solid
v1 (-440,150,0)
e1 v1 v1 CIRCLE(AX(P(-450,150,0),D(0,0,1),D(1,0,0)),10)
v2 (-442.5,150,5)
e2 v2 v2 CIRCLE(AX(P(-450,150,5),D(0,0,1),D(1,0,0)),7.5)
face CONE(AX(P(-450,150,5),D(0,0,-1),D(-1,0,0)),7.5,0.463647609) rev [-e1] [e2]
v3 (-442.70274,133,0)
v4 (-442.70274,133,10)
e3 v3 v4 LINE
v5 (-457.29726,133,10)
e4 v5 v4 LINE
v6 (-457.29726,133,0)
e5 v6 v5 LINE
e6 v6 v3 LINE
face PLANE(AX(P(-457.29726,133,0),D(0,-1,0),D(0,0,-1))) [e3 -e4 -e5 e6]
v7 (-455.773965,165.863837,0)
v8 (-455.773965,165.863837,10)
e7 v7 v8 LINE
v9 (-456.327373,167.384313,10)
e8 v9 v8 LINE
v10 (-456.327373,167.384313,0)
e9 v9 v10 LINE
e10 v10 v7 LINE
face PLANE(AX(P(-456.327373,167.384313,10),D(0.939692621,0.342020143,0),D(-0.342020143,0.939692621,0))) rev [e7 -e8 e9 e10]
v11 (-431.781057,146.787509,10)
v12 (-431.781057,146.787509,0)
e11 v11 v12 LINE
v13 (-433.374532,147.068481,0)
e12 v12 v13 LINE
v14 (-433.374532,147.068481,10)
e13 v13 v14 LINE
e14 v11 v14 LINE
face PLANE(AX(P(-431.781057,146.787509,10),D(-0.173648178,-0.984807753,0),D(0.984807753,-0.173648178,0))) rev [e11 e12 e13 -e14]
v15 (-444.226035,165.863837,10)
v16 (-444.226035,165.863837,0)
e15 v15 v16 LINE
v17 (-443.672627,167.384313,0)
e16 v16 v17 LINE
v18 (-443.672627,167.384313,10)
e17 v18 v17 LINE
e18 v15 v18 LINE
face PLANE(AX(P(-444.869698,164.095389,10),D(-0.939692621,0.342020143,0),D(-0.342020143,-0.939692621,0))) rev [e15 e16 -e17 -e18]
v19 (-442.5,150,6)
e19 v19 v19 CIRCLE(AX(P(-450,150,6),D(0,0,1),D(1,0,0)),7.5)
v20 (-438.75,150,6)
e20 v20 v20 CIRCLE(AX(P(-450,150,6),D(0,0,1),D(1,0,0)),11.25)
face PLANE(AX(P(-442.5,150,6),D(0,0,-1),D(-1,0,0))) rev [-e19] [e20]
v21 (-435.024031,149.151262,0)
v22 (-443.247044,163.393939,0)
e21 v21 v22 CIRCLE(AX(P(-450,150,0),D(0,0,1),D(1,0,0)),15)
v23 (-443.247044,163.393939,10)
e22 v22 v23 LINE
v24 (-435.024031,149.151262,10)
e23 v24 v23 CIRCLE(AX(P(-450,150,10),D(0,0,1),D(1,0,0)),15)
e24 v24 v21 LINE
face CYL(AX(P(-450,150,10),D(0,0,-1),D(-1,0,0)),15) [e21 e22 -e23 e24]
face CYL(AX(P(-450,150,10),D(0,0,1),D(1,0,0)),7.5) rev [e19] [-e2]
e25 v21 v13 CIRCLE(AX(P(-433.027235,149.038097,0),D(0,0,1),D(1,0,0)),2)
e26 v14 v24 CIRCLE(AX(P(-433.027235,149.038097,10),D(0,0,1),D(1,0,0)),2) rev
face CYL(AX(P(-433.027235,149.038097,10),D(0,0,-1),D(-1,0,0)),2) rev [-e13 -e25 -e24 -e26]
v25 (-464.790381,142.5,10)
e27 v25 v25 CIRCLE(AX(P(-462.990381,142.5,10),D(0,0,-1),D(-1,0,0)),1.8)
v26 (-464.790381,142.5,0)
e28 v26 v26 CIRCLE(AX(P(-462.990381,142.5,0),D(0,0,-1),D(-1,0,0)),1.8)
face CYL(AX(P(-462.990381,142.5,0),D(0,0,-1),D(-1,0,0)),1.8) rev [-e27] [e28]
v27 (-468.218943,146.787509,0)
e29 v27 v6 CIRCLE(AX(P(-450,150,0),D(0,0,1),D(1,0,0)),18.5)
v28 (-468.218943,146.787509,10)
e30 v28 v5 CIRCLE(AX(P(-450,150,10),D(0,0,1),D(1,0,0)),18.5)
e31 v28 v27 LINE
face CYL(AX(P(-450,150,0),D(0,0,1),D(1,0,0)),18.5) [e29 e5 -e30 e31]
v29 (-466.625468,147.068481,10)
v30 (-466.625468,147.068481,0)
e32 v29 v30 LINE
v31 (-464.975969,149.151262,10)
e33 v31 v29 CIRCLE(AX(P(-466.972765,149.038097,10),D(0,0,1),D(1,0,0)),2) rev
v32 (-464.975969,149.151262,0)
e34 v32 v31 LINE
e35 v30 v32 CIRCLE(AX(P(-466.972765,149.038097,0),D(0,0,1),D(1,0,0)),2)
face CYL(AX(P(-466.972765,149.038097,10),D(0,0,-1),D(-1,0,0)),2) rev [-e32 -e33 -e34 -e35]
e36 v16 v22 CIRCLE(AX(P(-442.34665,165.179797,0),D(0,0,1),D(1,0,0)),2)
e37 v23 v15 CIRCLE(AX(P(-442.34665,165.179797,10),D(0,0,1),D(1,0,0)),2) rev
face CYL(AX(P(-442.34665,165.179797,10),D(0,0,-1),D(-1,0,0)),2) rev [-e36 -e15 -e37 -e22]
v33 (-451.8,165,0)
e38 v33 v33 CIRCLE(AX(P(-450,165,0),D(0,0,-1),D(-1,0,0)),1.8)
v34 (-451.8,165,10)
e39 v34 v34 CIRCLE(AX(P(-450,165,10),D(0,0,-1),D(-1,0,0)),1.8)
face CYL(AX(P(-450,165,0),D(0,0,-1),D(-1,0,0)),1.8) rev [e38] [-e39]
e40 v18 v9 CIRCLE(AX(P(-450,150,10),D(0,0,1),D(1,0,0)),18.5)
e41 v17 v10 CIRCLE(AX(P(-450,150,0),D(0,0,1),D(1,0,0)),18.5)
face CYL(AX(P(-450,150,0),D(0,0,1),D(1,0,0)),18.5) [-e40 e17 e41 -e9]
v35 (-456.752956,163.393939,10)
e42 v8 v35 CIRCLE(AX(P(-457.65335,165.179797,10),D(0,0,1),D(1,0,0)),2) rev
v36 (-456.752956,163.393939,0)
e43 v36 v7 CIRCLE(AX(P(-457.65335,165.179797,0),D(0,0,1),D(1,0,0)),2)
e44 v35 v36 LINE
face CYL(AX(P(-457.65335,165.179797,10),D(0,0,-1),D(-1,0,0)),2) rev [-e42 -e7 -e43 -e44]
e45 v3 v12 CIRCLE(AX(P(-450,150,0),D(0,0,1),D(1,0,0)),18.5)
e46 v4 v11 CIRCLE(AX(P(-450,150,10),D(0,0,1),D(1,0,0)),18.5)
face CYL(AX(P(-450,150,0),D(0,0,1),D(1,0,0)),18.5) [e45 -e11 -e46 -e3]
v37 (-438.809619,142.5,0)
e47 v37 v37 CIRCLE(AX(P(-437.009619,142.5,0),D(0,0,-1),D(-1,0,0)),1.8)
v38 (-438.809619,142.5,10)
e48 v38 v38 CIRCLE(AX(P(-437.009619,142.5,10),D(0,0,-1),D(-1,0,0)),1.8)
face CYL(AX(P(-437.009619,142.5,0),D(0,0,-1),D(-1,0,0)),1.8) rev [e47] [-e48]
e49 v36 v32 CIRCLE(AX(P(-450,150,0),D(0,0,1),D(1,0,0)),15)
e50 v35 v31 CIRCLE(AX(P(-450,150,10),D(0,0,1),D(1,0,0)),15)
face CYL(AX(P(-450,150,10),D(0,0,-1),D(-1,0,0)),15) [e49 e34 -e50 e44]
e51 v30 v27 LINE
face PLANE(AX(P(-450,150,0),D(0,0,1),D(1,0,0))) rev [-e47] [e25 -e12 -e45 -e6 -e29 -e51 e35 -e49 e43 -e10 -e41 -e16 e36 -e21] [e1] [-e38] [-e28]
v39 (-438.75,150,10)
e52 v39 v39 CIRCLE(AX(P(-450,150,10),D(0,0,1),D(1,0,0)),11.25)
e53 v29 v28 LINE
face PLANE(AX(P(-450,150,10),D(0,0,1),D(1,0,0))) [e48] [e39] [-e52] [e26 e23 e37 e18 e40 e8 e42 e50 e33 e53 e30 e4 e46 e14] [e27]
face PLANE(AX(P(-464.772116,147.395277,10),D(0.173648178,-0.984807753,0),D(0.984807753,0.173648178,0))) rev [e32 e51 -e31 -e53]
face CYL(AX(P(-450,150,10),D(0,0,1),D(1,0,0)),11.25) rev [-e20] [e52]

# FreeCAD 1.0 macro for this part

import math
import FreeCAD as App
import Part
import Sketcher
Q = App.Units.Quantity


def edges_at(feature, points):
    """Names of the edges that pass closest to the given points."""
    edges = feature.Shape.Edges
    near = lambda p: min(range(len(edges)), key=lambda i: edges[i].distToShape(Part.Vertex(*p))[0])
    return sorted({f"Edge{near(p) + 1}" for p in points})


def add_polygon(sketch, points):
    """Adds a closed chain of lines whose ends are joined by coincident constraints."""
    first, n = sketch.GeometryCount, len(points)
    for a, b in zip(points, points[1:] + points[:1]):
        sketch.addGeometry(Part.LineSegment(App.Vector(*a, 0), App.Vector(*b, 0)), False)
    for i in range(n):
        sketch.addConstraint(Sketcher.Constraint("Coincident", first + i, 2, first + (i + 1) % n, 1))

doc = App.newDocument("Part")
body = doc.addObject("PartDesign::Body", "Body")

sketch1 = doc.addObject("Sketcher::SketchObject", "Sketch")
body.addObject(sketch1)
sketch1.AttachmentSupport = (doc.XY_Plane, [""])
sketch1.MapMode = "FlatFace"
sketch1.AttachmentOffset = App.Placement(App.Vector(0, 0, 10), App.Rotation())
sketch1.addGeometry([
    Part.LineSegment(App.Vector(-457, 133, 0), App.Vector(-443, 133, 0)),
    Part.ArcOfCircle(Part.Circle(App.Vector(-450, 150, 0), App.Vector(0, 0, 1), 18), math.radians(-67), math.radians(247)),
], False)
sketch1.addConstraint([
    Sketcher.Constraint("Coincident", 0, 1, 1, 2),
    Sketcher.Constraint("Coincident", 1, 1, 0, 2),
    Sketcher.Constraint("Horizontal", 0),
    Sketcher.Constraint("Radius", 1, 18.5),
    Sketcher.Constraint("DistanceX", 1, 3, -1, 1, 450.0),
    Sketcher.Constraint("DistanceY", -1, 1, 1, 3, 150.0),
    Sketcher.Constraint("DistanceY", -1, 1, 0, 1, 133.0),
])
pad1 = doc.addObject("PartDesign::Pad", "Pad")
body.addObject(pad1)
pad1.Profile = sketch1
pad1.Length = 10
pad1.Reversed = True

sketch2 = doc.addObject("Sketcher::SketchObject", "Sketch001")
body.addObject(sketch2)
sketch2.AttachmentSupport = (doc.XY_Plane, [""])
sketch2.MapMode = "FlatFace"
sketch2.addGeometry([
    Part.LineSegment(App.Vector(-431.8, 146.8, 0), App.Vector(-435.2, 147.4, 0)),
    Part.ArcOfCircle(Part.Circle(App.Vector(-450, 150, 0), App.Vector(0, 0, 1), 15), math.radians(-10), math.radians(70)),
    Part.LineSegment(App.Vector(-444.9, 164.1, 0), App.Vector(-443.7, 167.4, 0)),
    Part.ArcOfCircle(Part.Circle(App.Vector(-450, 150, 0), App.Vector(0, 0, 1), 18.5), math.radians(-10), math.radians(70)),
], False)
sketch2.addConstraint([
    Sketcher.Constraint("Coincident", 0, 2, 1, 1),
    Sketcher.Constraint("Coincident", 1, 2, 2, 1),
    Sketcher.Constraint("Coincident", 2, 2, 3, 2),
    Sketcher.Constraint("Coincident", 3, 1, 0, 1),
    Sketcher.Constraint("Coincident", 3, 3, 1, 3),
    Sketcher.Constraint("Radius", 1, 15.0),
    Sketcher.Constraint("Radius", 3, 18.5),
    Sketcher.Constraint("Angle", 0, Q("170 deg")),
    Sketcher.Constraint("Angle", 2, Q("70 deg")),
    Sketcher.Constraint("DistanceX", 1, 3, -1, 1, 450.0),
    Sketcher.Constraint("DistanceY", -1, 1, 1, 3, 150.0),
    Sketcher.Constraint("DistanceY", -1, 1, 1, 2, 164.095389),
    Sketcher.Constraint("DistanceY", -1, 1, 3, 1, 146.787509),
])
pocket1 = doc.addObject("PartDesign::Pocket", "Pocket")
body.addObject(pocket1)
pocket1.Profile = sketch2
pocket1.Type = "ThroughAll"
pocket1.Reversed = True

sketch3 = doc.addObject("Sketcher::SketchObject", "Sketch002")
body.addObject(sketch3)
sketch3.AttachmentSupport = (doc.XY_Plane, [""])
sketch3.MapMode = "FlatFace"
sketch3.addGeometry([
    Part.LineSegment(App.Vector(-456.3, 167.4, 0), App.Vector(-455.1, 164.1, 0)),
    Part.ArcOfCircle(Part.Circle(App.Vector(-450, 150, 0), App.Vector(0, 0, 1), 15), math.radians(110), math.radians(190)),
    Part.LineSegment(App.Vector(-464.8, 147.4, 0), App.Vector(-468.2, 146.8, 0)),
    Part.ArcOfCircle(Part.Circle(App.Vector(-450, 150, 0), App.Vector(0, 0, 1), 18.5), math.radians(110), math.radians(190)),
], False)
sketch3.addConstraint([
    Sketcher.Constraint("Coincident", 0, 2, 1, 1),
    Sketcher.Constraint("Coincident", 1, 2, 2, 1),
    Sketcher.Constraint("Coincident", 2, 2, 3, 2),
    Sketcher.Constraint("Coincident", 3, 1, 0, 1),
    Sketcher.Constraint("Coincident", 3, 3, 1, 3),
    Sketcher.Constraint("Radius", 1, 15.0),
    Sketcher.Constraint("Radius", 3, 18.5),
    Sketcher.Constraint("Angle", 0, Q("-70 deg")),
    Sketcher.Constraint("Angle", 2, Q("-170 deg")),
    Sketcher.Constraint("DistanceX", 1, 3, -1, 1, 450.0),
    Sketcher.Constraint("DistanceY", -1, 1, 1, 3, 150.0),
    Sketcher.Constraint("DistanceY", -1, 1, 0, 2, 164.095389),
    Sketcher.Constraint("DistanceY", -1, 1, 2, 2, 146.787509),
])
pocket2 = doc.addObject("PartDesign::Pocket", "Pocket001")
body.addObject(pocket2)
pocket2.Profile = sketch3
pocket2.Type = "ThroughAll"
pocket2.Reversed = True

sketch4 = doc.addObject("Sketcher::SketchObject", "Sketch003")
body.addObject(sketch4)
sketch4.AttachmentSupport = (doc.XY_Plane, [""])
sketch4.MapMode = "FlatFace"
sketch4.addGeometry([
    Part.Circle(App.Vector(-437, 142.5, 0), App.Vector(0, 0, 1), 1.8),
    Part.Circle(App.Vector(-450, 165, 0), App.Vector(0, 0, 1), 1.8),
    Part.Circle(App.Vector(-463, 142.5, 0), App.Vector(0, 0, 1), 1.8),
], False)
sketch4.addConstraint([
    Sketcher.Constraint("Equal", 0, 1),
    Sketcher.Constraint("Equal", 1, 2),
    Sketcher.Constraint("Horizontal", 0, 3, 2, 3),
    Sketcher.Constraint("Diameter", 0, 3.6),
    Sketcher.Constraint("DistanceX", 1, 3, -1, 1, 450.0),
    Sketcher.Constraint("DistanceY", -1, 1, 1, 3, 165.0),
    Sketcher.Constraint("DistanceY", -1, 1, 0, 3, 142.5),
    Sketcher.Constraint("DistanceX", 0, 3, -1, 1, 437.009619),
    Sketcher.Constraint("DistanceX", 2, 3, -1, 1, 462.990381),
])
doc.recompute()
hole = doc.addObject("PartDesign::Hole", "Hole")
body.addObject(hole)
hole.Profile = sketch4
hole.ThreadType = "None"
hole.Diameter = 3.6
hole.DepthType = "Dimension"
hole.Depth = 10
hole.DrillPoint = "Flat"
hole.Reversed = True

sketch5 = doc.addObject("Sketcher::SketchObject", "Sketch004")
body.addObject(sketch5)
sketch5.AttachmentSupport = (doc.YZ_Plane, [""])
sketch5.MapMode = "FlatFace"
sketch5.AttachmentOffset = App.Placement(App.Vector(0, 0, -450), App.Rotation())
add_polygon(sketch5, [(150, 0), (150, 10), (138.8, 10), (138.8, 6), (142.5, 6), (142.5, 5), (140, 0)])
sketch5.addGeometry(Part.LineSegment(App.Vector(150, 10, 0), App.Vector(150, 0, 0)), True)
sketch5.addConstraint([
    Sketcher.Constraint("Vertical", 0),
    Sketcher.Constraint("Horizontal", 1),
    Sketcher.Constraint("Vertical", 2),
    Sketcher.Constraint("Horizontal", 3),
    Sketcher.Constraint("Vertical", 4),
    Sketcher.Constraint("Horizontal", 6),
    Sketcher.Constraint("Vertical", 7),
    Sketcher.Constraint("Coincident", 7, 1, 0, 2),
    Sketcher.Constraint("PointOnObject", 5, 2, -1),
    Sketcher.Constraint("PointOnObject", 7, 2, -1),
    Sketcher.Constraint("Equal", 6, 0),
    Sketcher.Constraint("DistanceX", 6, 1, 6, 2, 10.0),
    Sketcher.Constraint("DistanceY", 2, 2, 2, 1, 4.0),
    Sketcher.Constraint("DistanceY", 4, 2, 4, 1, 1.0),
    Sketcher.Constraint("DistanceX", -1, 1, 0, 2, 150.0),
    Sketcher.Constraint("DistanceX", 1, 2, 1, 1, 11.25),
    Sketcher.Constraint("DistanceX", 3, 1, 3, 2, 3.75),
])
groove = doc.addObject("PartDesign::Groove", "Groove")
body.addObject(groove)
groove.Profile = sketch5
groove.ReferenceAxis = (sketch5, ["Axis0"])
groove.Angle = 360
doc.recompute()

fillet = doc.addObject("PartDesign::Fillet", "Fillet")
body.addObject(fillet)
fillet.Base = (groove, edges_at(groove, [
    (-444.87, 164.095, 5),
    (-435.228, 147.395, 5),
    (-464.772, 147.395, 5),
    (-455.13, 164.095, 5),
]))
fillet.Radius = 2

doc.recompute()
